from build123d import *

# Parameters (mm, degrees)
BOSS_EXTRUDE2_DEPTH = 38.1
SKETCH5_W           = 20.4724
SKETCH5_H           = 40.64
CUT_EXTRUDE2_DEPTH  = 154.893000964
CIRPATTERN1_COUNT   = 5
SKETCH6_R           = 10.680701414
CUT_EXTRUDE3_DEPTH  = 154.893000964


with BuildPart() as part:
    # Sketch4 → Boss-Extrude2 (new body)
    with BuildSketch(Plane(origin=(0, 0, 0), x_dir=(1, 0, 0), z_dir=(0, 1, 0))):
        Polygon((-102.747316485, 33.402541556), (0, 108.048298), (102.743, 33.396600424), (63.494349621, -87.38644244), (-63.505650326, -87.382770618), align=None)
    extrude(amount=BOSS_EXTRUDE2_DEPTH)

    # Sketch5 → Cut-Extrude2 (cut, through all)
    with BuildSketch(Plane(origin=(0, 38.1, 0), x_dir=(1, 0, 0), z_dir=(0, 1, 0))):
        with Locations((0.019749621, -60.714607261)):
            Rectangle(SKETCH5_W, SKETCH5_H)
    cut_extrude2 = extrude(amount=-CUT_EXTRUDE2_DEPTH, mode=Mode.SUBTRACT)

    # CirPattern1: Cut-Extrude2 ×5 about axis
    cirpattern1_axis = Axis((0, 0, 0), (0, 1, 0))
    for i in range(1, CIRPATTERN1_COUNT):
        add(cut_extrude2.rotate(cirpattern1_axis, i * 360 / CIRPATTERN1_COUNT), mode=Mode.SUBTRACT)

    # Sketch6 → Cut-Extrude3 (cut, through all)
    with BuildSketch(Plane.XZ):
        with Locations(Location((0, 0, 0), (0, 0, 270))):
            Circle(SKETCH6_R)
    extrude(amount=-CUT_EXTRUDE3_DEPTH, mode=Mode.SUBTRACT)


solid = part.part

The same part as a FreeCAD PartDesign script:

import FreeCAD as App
import Part
import Sketcher

V = App.Vector
Q = App.Units.Quantity


def add_polygon(sketch, points):
    """Adds a closed chain of lines whose ends are joined by coincident constraints."""
    first, n = sketch.GeometryCount, len(points)
    for a, b in zip(points, points[1:] + points[:1]):
        sketch.addGeometry(Part.LineSegment(App.Vector(*a, 0), App.Vector(*b, 0)), False)
    for i in range(n):
        sketch.addConstraint(Sketcher.Constraint("Coincident", first + i, 2, first + (i + 1) % n, 1))

doc = App.newDocument("Part")
body = doc.addObject("PartDesign::Body", "Body")

# Sketch on XZ plane
sketch1 = body.newObject("Sketcher::SketchObject", "Sketch")
sketch1.AttachmentSupport = (doc.getObject("XZ_Plane"), [""])
sketch1.MapMode = "FlatFace"
add_polygon(sketch1, [(0, -108), (-103, -33), (-64, 87), (63, 87), (103, -33)])  # lines 0-4
sketch1.addConstraint(Sketcher.Constraint("PointOnObject", 4, 2, -2))
sketch1.addConstraint(Sketcher.Constraint("Equal", 0, 1))
sketch1.addConstraint(Sketcher.Constraint("Equal", 1, 2))
sketch1.addConstraint(Sketcher.Constraint("Equal", 2, 3))
sketch1.addConstraint(Sketcher.Constraint("Equal", 3, 4))
sketch1.addConstraint(Sketcher.Constraint("Distance", 0, Q("5 in")))
sketch1.addConstraint(Sketcher.Constraint("DistanceX", -1, 1, 3, 2, Q("4.045 in")))
sketch1.addConstraint(Sketcher.Constraint("DistanceY", 3, 2, -1, 1, 33.3966))
sketch1.addConstraint(Sketcher.Constraint("DistanceY", 0, 2, -1, 1, 33.402542))
sketch1.addConstraint(Sketcher.Constraint("DistanceX", 1, 2, -1, 1, 63.50565))
pad1 = body.newObject("PartDesign::Pad", "Pad")
pad1.Profile = sketch1
pad1.Length = Q("1.5 in")
pad1.Reversed = True

# Sketch on XZ plane
sketch2 = body.newObject("Sketcher::SketchObject", "Sketch001")
sketch2.AttachmentSupport = (doc.getObject("XZ_Plane"), [""])
sketch2.MapMode = "FlatFace"
sketch2.AttachmentOffset = App.Placement(V(0, 0, -1.5 * 25.4), App.Rotation())
add_polygon(sketch2, [(-10, 40), (-10, 81), (10, 81), (10, 40)])  # lines 0-3
sketch2.addConstraint(Sketcher.Constraint("Vertical", 0))
sketch2.addConstraint(Sketcher.Constraint("Horizontal", 1))
sketch2.addConstraint(Sketcher.Constraint("Vertical", 2))
sketch2.addConstraint(Sketcher.Constraint("Horizontal", 3))
sketch2.addConstraint(Sketcher.Constraint("DistanceY", 0, 1, 0, 2, Q("1.6 in")))
sketch2.addConstraint(Sketcher.Constraint("DistanceX", 1, 1, 1, 2, Q("0.806 in")))
sketch2.addConstraint(Sketcher.Constraint("DistanceX", 0, 2, -1, 1, 10.21645))
sketch2.addConstraint(Sketcher.Constraint("DistanceY", -1, 1, 0, 2, 81.034607))
pocket1 = body.newObject("PartDesign::Pocket", "Pocket")
pocket1.Profile = sketch2
pocket1.Type = "ThroughAll"
pocket1.Reversed = True
doc.recompute()

polarpattern = body.newObject("PartDesign::PolarPattern", "PolarPattern")
polarpattern.Originals = [pocket1]
polarpattern.Axis = (doc.getObject("Y_Axis"), [""])
polarpattern.Angle = 360
polarpattern.Occurrences = 5
body.Tip = polarpattern

# Sketch on XZ plane
sketch3 = body.newObject("Sketcher::SketchObject", "Sketch002")
sketch3.AttachmentSupport = (doc.getObject("XZ_Plane"), [""])
sketch3.MapMode = "FlatFace"
sketch3.addGeometry(Part.Circle(V(0, 0, 0), V(0, 0, 1), 11), False)
sketch3.addConstraint(Sketcher.Constraint("Coincident", 0, 3, -1, 1))
sketch3.addConstraint(Sketcher.Constraint("Diameter", 0, Q("0.8410001 in")))
pocket2 = body.newObject("PartDesign::Pocket", "Pocket001")
pocket2.Profile = sketch3
pocket2.Type = "ThroughAll"

doc.recompute()
